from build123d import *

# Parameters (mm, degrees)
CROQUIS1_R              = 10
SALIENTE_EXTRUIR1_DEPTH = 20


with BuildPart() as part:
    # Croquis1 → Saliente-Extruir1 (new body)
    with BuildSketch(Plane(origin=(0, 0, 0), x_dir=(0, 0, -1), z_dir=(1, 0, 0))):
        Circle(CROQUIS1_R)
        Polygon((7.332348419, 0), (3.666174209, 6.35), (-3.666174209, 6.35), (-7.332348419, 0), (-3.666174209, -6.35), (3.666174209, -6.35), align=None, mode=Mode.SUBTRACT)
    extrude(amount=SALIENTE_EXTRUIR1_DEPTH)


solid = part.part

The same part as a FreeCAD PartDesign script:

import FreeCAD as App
import Part
import Sketcher

V = App.Vector
Q = App.Units.Quantity


def add_polygon(sketch, points):
    """Adds a closed chain of lines whose ends are joined by coincident constraints."""
    first, n = sketch.GeometryCount, len(points)
    for a, b in zip(points, points[1:] + points[:1]):
        sketch.addGeometry(Part.LineSegment(App.Vector(*a, 0), App.Vector(*b, 0)), False)
    for i in range(n):
        sketch.addConstraint(Sketcher.Constraint("Coincident", first + i, 2, first + (i + 1) % n, 1))

doc = App.newDocument("Part")
body = doc.addObject("PartDesign::Body", "Body")

sketch1 = doc.addObject("Sketcher::SketchObject", "Sketch")
body.addObject(sketch1)
sketch1.AttachmentSupport = (doc.YZ_Plane, [""])
sketch1.MapMode = "FlatFace"
sketch1.addGeometry(Part.Circle(V(0, 0, 0), V(0, 0, 1), 10), False)
add_polygon(sketch1, [(6, -4), (0, -7), (-6, -4), (-6, 4), (0, 7), (6, 4)])
sketch1.addConstraint([
    Sketcher.Constraint("Vertical", 3),
    Sketcher.Constraint("Vertical", 6),
    Sketcher.Constraint("Coincident", 0, 3, -1, 1),
    Sketcher.Constraint("Symmetric", 1, 2, 4, 2, -1, 1),
    Sketcher.Constraint("Symmetric", 2, 2, 5, 2, -1, 1),
    Sketcher.Constraint("PointOnObject", 1, 2, -2),
    Sketcher.Constraint("Parallel", 1, 4),
    Sketcher.Constraint("Horizontal", 3, 2, 5, 2),
    Sketcher.Constraint("Diameter", 0, Q("20 mm")),
    Sketcher.Constraint("Angle", 1, Q("-150 deg")),
    Sketcher.Constraint("DistanceX", 3, 2, 5, 2, Q("12.7 mm")),
    Sketcher.Constraint("DistanceY", 3, 1, 3, 2, Q("7.332348 mm")),
])
pad1 = doc.addObject("PartDesign::Pad", "Pad")
body.addObject(pad1)
pad1.Profile = sketch1
pad1.Length = 20

doc.recompute()
